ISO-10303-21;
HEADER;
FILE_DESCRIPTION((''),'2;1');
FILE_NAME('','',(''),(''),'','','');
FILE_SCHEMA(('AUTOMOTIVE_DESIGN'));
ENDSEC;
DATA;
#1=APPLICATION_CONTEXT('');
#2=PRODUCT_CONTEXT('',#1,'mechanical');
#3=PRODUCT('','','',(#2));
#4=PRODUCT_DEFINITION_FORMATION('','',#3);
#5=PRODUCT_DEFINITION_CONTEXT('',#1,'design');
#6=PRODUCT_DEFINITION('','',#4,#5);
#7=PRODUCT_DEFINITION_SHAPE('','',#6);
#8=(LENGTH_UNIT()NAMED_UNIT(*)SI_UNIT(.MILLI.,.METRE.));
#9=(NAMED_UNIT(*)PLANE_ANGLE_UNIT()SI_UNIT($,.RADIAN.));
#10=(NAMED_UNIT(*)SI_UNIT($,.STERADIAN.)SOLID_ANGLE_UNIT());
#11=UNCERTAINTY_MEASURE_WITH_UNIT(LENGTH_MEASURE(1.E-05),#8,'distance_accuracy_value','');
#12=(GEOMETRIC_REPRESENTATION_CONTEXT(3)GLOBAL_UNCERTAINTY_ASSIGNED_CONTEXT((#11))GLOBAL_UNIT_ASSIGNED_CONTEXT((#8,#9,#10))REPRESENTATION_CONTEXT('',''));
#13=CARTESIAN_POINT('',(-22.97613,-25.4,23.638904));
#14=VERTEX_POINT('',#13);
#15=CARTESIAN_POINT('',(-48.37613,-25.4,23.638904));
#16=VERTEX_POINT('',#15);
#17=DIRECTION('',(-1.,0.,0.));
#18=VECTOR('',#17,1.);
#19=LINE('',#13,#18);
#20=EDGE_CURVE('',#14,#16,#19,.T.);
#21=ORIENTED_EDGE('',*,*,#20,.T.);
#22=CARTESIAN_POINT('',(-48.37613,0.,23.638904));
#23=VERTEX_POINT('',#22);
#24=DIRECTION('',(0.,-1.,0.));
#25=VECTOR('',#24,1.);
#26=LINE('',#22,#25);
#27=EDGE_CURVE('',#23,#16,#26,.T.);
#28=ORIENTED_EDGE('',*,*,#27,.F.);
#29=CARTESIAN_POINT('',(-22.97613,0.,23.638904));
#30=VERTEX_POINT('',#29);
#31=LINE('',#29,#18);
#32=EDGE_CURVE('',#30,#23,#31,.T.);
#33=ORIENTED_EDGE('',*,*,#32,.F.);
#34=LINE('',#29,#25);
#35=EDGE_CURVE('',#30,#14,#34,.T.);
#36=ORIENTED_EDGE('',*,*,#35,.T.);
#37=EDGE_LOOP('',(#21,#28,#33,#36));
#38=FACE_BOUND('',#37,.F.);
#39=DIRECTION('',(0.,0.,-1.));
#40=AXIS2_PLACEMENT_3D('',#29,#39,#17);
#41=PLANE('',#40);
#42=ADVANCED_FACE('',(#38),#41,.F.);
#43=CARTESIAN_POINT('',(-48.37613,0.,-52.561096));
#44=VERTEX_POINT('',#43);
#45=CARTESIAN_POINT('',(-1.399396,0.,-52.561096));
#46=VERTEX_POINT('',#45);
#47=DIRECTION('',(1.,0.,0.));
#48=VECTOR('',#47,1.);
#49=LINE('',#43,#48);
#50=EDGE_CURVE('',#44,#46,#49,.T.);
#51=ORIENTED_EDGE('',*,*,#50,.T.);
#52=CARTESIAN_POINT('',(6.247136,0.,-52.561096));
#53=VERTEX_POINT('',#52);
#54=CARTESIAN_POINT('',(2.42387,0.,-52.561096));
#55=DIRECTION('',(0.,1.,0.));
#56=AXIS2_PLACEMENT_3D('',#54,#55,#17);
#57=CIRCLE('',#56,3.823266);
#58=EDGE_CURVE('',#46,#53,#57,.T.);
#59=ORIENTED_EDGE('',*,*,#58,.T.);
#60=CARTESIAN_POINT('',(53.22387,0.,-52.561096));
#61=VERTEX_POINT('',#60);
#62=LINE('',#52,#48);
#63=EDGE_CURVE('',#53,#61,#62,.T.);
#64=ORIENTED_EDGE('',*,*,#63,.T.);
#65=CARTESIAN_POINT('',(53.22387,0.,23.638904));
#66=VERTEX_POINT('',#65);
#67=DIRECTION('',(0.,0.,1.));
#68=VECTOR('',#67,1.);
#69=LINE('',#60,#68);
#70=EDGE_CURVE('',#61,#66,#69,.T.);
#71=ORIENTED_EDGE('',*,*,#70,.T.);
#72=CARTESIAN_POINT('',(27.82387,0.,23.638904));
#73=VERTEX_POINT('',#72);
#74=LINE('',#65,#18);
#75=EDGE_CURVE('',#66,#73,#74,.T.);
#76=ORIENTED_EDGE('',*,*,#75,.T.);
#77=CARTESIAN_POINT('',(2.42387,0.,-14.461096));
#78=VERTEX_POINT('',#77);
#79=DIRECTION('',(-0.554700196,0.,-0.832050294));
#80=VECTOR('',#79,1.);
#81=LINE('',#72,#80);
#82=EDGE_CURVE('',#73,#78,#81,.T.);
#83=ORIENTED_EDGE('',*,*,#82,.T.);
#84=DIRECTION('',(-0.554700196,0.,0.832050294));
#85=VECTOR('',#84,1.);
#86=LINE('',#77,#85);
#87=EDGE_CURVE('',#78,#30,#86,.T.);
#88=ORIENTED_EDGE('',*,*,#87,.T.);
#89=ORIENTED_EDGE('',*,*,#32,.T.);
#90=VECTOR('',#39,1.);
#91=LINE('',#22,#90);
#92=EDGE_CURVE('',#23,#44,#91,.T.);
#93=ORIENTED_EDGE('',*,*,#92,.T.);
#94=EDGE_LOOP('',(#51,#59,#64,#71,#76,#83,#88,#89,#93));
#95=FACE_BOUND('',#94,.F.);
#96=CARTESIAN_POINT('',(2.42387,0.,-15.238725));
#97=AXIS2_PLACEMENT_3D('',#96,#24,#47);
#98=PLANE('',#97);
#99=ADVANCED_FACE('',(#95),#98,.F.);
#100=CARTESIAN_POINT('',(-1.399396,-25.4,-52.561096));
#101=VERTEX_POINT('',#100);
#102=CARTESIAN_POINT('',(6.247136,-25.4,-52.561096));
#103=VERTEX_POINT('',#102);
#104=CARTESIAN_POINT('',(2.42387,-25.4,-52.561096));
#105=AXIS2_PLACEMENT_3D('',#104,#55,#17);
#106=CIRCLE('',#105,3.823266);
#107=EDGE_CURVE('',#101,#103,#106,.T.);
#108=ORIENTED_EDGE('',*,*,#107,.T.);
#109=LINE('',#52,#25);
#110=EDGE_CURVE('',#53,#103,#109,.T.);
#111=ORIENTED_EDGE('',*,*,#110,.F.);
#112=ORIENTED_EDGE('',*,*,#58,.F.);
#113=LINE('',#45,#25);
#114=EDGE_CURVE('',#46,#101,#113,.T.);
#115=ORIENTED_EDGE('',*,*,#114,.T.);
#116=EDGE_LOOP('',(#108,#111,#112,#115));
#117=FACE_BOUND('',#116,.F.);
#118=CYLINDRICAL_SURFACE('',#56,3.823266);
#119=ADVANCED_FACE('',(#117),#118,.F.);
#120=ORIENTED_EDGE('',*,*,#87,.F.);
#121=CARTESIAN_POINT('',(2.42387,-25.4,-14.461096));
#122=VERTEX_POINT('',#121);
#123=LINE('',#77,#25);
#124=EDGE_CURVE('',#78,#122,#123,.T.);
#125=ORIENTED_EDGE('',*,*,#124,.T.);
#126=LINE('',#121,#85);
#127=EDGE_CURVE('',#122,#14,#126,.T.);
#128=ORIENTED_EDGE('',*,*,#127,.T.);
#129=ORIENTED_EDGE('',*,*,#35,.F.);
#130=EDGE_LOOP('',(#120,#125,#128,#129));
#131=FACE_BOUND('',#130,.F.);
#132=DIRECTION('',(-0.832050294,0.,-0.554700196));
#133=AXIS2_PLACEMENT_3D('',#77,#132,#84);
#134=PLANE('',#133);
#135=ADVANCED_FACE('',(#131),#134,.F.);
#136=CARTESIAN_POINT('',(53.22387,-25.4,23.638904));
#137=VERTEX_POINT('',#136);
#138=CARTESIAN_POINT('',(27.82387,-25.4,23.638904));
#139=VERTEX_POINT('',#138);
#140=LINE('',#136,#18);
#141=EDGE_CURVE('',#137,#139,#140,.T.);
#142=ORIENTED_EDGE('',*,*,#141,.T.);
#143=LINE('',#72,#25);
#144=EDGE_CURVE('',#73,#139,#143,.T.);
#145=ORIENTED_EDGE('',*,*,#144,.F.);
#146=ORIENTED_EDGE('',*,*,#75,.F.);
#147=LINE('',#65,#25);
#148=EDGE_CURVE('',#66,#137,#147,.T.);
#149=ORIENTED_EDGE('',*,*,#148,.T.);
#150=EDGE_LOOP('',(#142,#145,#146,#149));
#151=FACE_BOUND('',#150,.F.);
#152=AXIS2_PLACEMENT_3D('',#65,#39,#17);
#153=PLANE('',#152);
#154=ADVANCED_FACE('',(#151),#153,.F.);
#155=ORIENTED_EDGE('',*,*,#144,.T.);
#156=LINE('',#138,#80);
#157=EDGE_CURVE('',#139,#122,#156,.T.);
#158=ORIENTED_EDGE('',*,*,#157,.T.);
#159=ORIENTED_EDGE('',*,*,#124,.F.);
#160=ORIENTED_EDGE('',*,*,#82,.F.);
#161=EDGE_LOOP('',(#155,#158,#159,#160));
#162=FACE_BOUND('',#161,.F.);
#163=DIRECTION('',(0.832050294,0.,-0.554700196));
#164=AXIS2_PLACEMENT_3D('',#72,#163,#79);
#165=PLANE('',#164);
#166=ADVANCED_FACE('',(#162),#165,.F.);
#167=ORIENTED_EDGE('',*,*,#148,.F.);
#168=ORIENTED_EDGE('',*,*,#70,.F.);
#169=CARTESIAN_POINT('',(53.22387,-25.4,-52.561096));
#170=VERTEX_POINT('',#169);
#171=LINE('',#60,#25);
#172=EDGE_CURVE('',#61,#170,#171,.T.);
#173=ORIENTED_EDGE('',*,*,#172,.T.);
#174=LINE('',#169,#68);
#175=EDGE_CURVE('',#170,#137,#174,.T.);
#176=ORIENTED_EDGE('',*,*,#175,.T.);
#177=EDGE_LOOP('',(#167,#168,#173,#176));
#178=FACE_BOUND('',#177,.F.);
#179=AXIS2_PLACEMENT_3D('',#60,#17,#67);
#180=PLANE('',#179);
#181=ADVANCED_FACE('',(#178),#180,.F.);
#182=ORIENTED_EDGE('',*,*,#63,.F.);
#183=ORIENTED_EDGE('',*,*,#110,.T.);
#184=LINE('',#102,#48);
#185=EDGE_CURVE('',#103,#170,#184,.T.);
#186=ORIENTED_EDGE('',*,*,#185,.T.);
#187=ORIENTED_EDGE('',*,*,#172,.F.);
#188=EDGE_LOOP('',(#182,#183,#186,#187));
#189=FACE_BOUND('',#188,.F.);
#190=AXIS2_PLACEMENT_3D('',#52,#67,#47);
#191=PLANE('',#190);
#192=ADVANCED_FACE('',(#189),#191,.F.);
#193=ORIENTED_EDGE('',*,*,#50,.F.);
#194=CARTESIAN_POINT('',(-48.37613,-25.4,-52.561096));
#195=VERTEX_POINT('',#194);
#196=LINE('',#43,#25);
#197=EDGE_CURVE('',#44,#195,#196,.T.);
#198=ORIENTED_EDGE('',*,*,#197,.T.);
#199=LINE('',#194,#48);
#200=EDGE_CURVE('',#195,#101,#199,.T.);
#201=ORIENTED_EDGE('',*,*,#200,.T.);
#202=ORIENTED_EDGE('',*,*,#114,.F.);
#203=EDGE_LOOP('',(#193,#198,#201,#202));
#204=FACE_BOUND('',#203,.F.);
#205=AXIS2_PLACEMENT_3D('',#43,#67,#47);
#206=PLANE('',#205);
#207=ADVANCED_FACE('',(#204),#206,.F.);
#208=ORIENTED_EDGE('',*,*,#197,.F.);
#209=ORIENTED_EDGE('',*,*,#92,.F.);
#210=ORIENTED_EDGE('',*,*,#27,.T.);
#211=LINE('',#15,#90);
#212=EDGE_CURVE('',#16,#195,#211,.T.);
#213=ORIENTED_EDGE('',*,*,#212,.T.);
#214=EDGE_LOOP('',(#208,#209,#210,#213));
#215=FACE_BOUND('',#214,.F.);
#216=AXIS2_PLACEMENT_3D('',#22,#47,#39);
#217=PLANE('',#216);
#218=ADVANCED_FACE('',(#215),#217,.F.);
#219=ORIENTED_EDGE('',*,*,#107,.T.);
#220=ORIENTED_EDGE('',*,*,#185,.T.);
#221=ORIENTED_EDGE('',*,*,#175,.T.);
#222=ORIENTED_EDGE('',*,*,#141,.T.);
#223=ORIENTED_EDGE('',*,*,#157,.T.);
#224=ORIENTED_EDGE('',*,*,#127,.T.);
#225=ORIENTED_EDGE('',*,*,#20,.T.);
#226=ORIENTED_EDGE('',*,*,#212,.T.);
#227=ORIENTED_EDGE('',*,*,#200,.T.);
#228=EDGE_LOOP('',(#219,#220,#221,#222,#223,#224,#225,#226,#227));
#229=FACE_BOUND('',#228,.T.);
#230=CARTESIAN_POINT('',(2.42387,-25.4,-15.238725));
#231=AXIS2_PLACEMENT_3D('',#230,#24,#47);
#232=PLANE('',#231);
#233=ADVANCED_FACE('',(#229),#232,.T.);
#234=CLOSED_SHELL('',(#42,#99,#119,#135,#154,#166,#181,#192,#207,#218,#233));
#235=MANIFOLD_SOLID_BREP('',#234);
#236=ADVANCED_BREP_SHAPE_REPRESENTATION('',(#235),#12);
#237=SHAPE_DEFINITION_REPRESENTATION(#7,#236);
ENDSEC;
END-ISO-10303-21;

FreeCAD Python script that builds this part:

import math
import FreeCAD as App
import Part
import Sketcher

V = App.Vector
Q = App.Units.Quantity

doc = App.newDocument("Part")
body = doc.addObject("PartDesign::Body", "Body")

# Sketch on XZ plane
sketch1 = body.newObject("Sketcher::SketchObject", "Sketch")
sketch1.AttachmentSupport = (doc.getObject("XZ_Plane"), [""])
sketch1.MapMode = "FlatFace"
sketch1.addGeometry([
    Part.ArcOfCircle(Part.Circle(V(2.42387, -52.561096, 0), V(0, 0, 1), 3.823266), math.radians(0), math.radians(180)),  # 0
    Part.LineSegment(V(6.247136, -52.561096, 0), V(53.22387, -52.561096, 0)),  # 1
    Part.LineSegment(V(53.22387, -52.561096, 0), V(53.22387, 23.638904, 0)),  # 2
    Part.LineSegment(V(53.22387, 23.638904, 0), V(27.82387, 23.638904, 0)),  # 3
    Part.LineSegment(V(27.82387, 23.638904, 0), V(2.42387, -14.461096, 0)),  # 4
    Part.LineSegment(V(2.42387, -14.461096, 0), V(-22.97613, 23.638904, 0)),  # 5
    Part.LineSegment(V(-22.97613, 23.638904, 0), V(-48.37613, 23.638904, 0)),  # 6
    Part.LineSegment(V(-48.37613, 23.638904, 0), V(-48.37613, -52.561096, 0)),  # 7
    Part.LineSegment(V(-48.37613, -52.561096, 0), V(-1.399396, -52.561096, 0)),  # 8
], False)
sketch1.addConstraint([
    Sketcher.Constraint("Coincident", 0, 1, 1, 1),
    Sketcher.Constraint("Coincident", 1, 2, 2, 1),
    Sketcher.Constraint("Coincident", 2, 2, 3, 1),
    Sketcher.Constraint("Coincident", 3, 2, 4, 1),
    Sketcher.Constraint("Coincident", 4, 2, 5, 1),
    Sketcher.Constraint("Coincident", 5, 2, 6, 1),
    Sketcher.Constraint("Coincident", 6, 2, 7, 1),
    Sketcher.Constraint("Coincident", 7, 2, 8, 1),
    Sketcher.Constraint("Coincident", 8, 2, 0, 2),
    Sketcher.Constraint("Horizontal", 1),
    Sketcher.Constraint("Vertical", 2),
    Sketcher.Constraint("Horizontal", 3),
    Sketcher.Constraint("Horizontal", 6),
    Sketcher.Constraint("Vertical", 7),
    Sketcher.Constraint("Horizontal", 8),
    Sketcher.Constraint("Horizontal", 3, 2, 5, 2),
    Sketcher.Constraint("Horizontal", 1, 2, 7, 2),
    Sketcher.Constraint("Vertical", 0, 3, 4, 2),
    Sketcher.Constraint("Equal", 3, 6),
    Sketcher.Constraint("Equal", 1, 8),
    Sketcher.Constraint("DistanceX", 3, 2, 3, 1, Q("1 in")),
    Sketcher.Constraint("DistanceY", 2, 1, 2, 2, Q("3 in")),
    Sketcher.Constraint("DistanceX", 0, 3, 1, 2, Q("2 in")),
    Sketcher.Constraint("DistanceY", 0, 3, 2, 2, Q("3 in")),
    Sketcher.Constraint("DistanceY", 0, 3, 4, 2, Q("1.5 in")),
    Sketcher.Constraint("Radius", 0, 3.823266),
    Sketcher.Constraint("DistanceX", -1, 1, 0, 3, 2.42387),
    Sketcher.Constraint("DistanceY", 0, 3, -1, 1, 52.561096),
])
pad1 = body.newObject("PartDesign::Pad", "Pad")
pad1.Profile = sketch1
pad1.Length = Q("1 in")

doc.recompute()
